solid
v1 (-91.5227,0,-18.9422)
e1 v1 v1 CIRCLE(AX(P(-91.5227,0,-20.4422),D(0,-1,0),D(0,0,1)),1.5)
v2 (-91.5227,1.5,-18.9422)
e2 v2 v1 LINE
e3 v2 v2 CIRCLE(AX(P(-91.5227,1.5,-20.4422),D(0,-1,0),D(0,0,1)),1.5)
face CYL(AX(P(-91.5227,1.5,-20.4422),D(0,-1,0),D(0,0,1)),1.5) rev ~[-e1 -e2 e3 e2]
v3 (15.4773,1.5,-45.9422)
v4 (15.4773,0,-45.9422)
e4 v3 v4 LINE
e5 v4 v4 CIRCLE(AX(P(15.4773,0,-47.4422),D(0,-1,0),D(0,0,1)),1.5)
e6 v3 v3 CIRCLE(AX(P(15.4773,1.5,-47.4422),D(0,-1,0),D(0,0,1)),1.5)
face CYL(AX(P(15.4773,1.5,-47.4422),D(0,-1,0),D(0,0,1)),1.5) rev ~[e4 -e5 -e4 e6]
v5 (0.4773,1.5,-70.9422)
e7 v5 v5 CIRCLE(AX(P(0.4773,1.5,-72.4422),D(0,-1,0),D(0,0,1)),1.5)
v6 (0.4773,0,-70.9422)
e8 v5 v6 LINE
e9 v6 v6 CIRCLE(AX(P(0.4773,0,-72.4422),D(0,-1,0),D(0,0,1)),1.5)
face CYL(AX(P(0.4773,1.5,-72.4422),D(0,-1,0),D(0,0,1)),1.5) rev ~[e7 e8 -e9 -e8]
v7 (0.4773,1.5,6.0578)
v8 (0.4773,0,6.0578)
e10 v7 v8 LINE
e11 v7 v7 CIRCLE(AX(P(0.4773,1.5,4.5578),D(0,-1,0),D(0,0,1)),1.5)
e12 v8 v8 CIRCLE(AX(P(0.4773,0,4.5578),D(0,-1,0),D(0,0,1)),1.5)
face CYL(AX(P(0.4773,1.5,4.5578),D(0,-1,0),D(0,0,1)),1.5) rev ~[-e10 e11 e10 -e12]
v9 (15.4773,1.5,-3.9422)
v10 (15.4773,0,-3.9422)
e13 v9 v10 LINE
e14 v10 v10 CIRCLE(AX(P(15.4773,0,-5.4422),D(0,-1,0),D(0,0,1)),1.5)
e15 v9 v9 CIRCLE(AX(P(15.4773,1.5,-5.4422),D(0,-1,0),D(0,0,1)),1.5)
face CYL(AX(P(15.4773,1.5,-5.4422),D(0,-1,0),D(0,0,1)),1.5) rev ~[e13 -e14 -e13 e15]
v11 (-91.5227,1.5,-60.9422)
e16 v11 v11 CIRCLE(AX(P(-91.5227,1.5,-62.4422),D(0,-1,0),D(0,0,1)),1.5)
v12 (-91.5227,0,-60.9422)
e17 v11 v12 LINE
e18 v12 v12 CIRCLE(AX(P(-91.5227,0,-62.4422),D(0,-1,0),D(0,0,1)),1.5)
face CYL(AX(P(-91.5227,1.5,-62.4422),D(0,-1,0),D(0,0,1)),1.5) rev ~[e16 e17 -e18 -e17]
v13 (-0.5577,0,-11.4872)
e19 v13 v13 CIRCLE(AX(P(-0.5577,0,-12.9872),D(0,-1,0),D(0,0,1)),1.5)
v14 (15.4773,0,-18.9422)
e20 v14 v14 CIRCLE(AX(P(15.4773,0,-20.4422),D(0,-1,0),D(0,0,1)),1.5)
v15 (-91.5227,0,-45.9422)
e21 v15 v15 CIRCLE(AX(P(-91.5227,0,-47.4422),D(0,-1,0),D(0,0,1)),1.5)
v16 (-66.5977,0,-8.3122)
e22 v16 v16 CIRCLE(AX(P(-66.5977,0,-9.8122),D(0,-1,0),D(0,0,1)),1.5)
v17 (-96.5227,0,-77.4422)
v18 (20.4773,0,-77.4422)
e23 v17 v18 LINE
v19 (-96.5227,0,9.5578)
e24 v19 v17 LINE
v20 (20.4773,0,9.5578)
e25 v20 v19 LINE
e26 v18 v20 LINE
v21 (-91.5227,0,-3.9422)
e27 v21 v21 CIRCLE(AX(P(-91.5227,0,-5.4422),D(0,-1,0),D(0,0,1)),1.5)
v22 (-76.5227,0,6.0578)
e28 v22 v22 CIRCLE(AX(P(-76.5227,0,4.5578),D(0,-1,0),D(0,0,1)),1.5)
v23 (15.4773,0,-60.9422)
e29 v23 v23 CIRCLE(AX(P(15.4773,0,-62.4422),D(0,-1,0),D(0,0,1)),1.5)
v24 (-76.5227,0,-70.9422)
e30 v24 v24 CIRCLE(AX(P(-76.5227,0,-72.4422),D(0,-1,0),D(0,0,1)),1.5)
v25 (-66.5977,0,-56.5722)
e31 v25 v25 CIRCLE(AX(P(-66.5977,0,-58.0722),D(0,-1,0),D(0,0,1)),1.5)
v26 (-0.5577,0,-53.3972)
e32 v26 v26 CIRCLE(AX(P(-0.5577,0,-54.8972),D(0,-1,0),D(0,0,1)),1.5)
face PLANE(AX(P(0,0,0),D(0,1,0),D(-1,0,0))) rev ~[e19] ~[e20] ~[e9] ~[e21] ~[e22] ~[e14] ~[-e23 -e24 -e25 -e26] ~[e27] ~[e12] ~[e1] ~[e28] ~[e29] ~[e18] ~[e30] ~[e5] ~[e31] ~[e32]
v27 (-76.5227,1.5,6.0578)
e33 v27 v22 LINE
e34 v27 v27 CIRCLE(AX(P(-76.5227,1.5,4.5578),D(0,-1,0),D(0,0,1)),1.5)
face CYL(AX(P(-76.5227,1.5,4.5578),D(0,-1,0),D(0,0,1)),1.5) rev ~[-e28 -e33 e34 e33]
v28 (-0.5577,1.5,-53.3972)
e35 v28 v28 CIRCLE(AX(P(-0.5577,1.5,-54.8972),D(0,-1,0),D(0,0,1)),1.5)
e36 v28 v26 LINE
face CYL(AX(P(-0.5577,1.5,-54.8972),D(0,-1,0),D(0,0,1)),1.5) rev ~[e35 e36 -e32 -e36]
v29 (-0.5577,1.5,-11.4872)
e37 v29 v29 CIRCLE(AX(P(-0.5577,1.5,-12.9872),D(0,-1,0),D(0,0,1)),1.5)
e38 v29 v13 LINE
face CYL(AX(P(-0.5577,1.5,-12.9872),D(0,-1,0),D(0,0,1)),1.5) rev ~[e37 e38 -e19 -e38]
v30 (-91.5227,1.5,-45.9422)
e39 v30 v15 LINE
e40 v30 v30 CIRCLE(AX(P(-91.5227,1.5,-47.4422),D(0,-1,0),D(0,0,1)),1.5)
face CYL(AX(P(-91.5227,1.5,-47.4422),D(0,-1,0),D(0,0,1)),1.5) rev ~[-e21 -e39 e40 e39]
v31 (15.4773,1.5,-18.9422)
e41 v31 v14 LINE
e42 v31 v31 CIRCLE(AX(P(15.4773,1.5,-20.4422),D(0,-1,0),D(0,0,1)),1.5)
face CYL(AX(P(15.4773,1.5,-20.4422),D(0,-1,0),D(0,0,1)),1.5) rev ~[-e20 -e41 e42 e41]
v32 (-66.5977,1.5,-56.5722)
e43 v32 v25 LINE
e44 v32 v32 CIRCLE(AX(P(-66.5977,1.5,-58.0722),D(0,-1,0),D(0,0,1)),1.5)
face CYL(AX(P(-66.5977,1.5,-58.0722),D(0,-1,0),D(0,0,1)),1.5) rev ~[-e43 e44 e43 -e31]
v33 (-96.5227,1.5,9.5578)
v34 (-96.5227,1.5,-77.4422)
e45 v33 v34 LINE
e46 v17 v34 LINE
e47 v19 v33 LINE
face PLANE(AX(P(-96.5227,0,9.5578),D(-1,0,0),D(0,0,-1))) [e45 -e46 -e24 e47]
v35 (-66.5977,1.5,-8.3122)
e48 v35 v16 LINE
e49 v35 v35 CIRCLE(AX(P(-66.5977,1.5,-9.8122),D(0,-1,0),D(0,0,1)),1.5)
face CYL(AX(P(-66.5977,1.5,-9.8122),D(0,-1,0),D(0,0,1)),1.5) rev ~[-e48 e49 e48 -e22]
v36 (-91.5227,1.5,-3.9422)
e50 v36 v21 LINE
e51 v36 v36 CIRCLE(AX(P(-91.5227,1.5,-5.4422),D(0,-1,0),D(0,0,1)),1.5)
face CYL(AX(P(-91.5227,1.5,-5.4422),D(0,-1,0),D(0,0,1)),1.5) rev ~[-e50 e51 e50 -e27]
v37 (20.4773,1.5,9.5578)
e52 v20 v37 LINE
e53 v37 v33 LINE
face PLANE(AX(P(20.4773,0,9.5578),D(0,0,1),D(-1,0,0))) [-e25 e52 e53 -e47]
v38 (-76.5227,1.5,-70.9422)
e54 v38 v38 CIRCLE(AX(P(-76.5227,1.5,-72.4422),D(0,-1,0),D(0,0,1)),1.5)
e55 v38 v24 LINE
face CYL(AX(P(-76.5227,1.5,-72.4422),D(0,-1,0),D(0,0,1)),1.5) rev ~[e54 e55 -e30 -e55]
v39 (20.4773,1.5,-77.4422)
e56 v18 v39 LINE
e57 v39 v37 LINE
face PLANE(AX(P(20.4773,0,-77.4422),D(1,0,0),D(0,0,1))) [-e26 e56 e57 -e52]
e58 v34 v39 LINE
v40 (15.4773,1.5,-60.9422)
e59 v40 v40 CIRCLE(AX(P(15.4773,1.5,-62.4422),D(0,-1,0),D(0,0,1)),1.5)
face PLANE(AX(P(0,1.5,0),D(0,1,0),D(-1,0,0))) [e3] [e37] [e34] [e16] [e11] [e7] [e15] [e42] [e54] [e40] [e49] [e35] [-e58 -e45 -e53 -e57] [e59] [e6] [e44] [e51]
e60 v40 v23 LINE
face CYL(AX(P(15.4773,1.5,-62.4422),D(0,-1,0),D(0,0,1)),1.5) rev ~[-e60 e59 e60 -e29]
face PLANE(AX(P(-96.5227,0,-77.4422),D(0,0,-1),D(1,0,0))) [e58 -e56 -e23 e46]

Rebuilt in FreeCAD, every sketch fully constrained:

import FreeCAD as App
import Part
import Sketcher
from FreeCAD import Vector
Q = App.Units.Quantity

doc = App.newDocument("Part")
body = doc.addObject("PartDesign::Body", "Body")

# Sketch on XZ plane
sketch1 = body.newObject("Sketcher::SketchObject", "Sketch")
sketch1.AttachmentSupport = (doc.getObject("XZ_Plane"), [""])
sketch1.MapMode = "FlatFace"
sketch1.addGeometry([
    Part.LineSegment(Vector(-97, 10, 0), Vector(20, 10, 0)),
    Part.LineSegment(Vector(20, 10, 0), Vector(20, -77, 0)),
    Part.LineSegment(Vector(20, -77, 0), Vector(-97, -77, 0)),
    Part.LineSegment(Vector(-97, -77, 0), Vector(-97, 10, 0)),
], False)
sketch1.addConstraint([
    Sketcher.Constraint("Coincident", 0, 2, 1, 1),
    Sketcher.Constraint("Coincident", 1, 2, 2, 1),
    Sketcher.Constraint("Coincident", 2, 2, 3, 1),
    Sketcher.Constraint("Coincident", 3, 2, 0, 1),
    Sketcher.Constraint("Horizontal", 0),
    Sketcher.Constraint("Vertical", 1),
    Sketcher.Constraint("Horizontal", 2),
    Sketcher.Constraint("Vertical", 3),
    Sketcher.Constraint("DistanceX", 0, 1, 0, 2, Q("117 mm")),
    Sketcher.Constraint("DistanceY", 1, 2, 1, 1, Q("87 mm")),
    Sketcher.Constraint("DistanceX", -1, 1, 0, 2, Q("20.4773 mm")),
    Sketcher.Constraint("DistanceY", -1, 1, 0, 2, Q("9.5578 mm")),
])
pad1 = body.newObject("PartDesign::Pad", "Pad")
pad1.Profile = sketch1
pad1.Length = 1.5
pad1.Reversed = True

# Sketch on XZ plane
sketch2 = body.newObject("Sketcher::SketchObject", "Sketch001")
sketch2.AttachmentSupport = (doc.getObject("XZ_Plane"), [""])
sketch2.MapMode = "FlatFace"
sketch2.AttachmentOffset = App.Placement(Vector(0, 0, -1.5), App.Rotation())
sketch2.addGeometry([
    Part.Circle(Vector(-76.5, -72.4, 0), Vector(0, 0, 1), 1.5),
    Part.Circle(Vector(0.5, -72.4, 0), Vector(0, 0, 1), 1.5),
    Part.Circle(Vector(-76.5, 4.6, 0), Vector(0, 0, 1), 1.5),
    Part.Circle(Vector(0.5, 4.6, 0), Vector(0, 0, 1), 1.5),
], False)
sketch2.addConstraint([
    Sketcher.Constraint("Equal", 0, 1),
    Sketcher.Constraint("Equal", 1, 2),
    Sketcher.Constraint("Equal", 2, 3),
    Sketcher.Constraint("Horizontal", 0, 3, 1, 3),
    Sketcher.Constraint("Horizontal", 2, 3, 3, 3),
    Sketcher.Constraint("Vertical", 0, 3, 2, 3),
    Sketcher.Constraint("Vertical", 1, 3, 3, 3),
    Sketcher.Constraint("Diameter", 0, Q("3 mm")),
    Sketcher.Constraint("DistanceX", 0, 3, 1, 3, Q("77 mm")),
    Sketcher.Constraint("DistanceY", 0, 3, 2, 3, Q("77 mm")),
    Sketcher.Constraint("DistanceX", 0, 3, -1, 1, Q("76.5227 mm")),
    Sketcher.Constraint("DistanceY", 0, 3, -1, 1, Q("72.4422 mm")),
])
doc.recompute()
hole = body.newObject("PartDesign::Hole", "Hole")
hole.Profile = sketch2
hole.ThreadType = "None"
hole.Diameter = 3
hole.DepthType = "ThroughAll"
hole.Reversed = True

# Sketch on XZ plane
sketch3 = body.newObject("Sketcher::SketchObject", "Sketch002")
sketch3.AttachmentSupport = (doc.getObject("XZ_Plane"), [""])
sketch3.MapMode = "FlatFace"
sketch3.AttachmentOffset = App.Placement(Vector(0, 0, -1.5), App.Rotation())
sketch3.addGeometry([
    Part.Circle(Vector(-91.5, -47.4, 0), Vector(0, 0, 1), 1.5),  # 0
    Part.Circle(Vector(-91.5, -62.4, 0), Vector(0, 0, 1), 1.5),  # 1
    Part.Circle(Vector(-91.5, -20.4, 0), Vector(0, 0, 1), 1.5),  # 2
    Part.Circle(Vector(-91.5, -5.4, 0), Vector(0, 0, 1), 1.5),  # 3
    Part.Circle(Vector(15.5, -62.4, 0), Vector(0, 0, 1), 1.5),  # 4
    Part.Circle(Vector(15.5, -47.4, 0), Vector(0, 0, 1), 1.5),  # 5
    Part.Circle(Vector(15.5, -20.4, 0), Vector(0, 0, 1), 1.5),  # 6
    Part.Circle(Vector(15.5, -5.4, 0), Vector(0, 0, 1), 1.5),  # 7
], False)
sketch3.addConstraint([
    Sketcher.Constraint("Equal", 0, 1),
    Sketcher.Constraint("Equal", 1, 2),
    Sketcher.Constraint("Equal", 2, 3),
    Sketcher.Constraint("Equal", 3, 4),
    Sketcher.Constraint("Equal", 4, 5),
    Sketcher.Constraint("Equal", 5, 6),
    Sketcher.Constraint("Equal", 6, 7),
    Sketcher.Constraint("Horizontal", 1, 3, 4, 3),
    Sketcher.Constraint("Horizontal", 0, 3, 5, 3),
    Sketcher.Constraint("Horizontal", 2, 3, 6, 3),
    Sketcher.Constraint("Horizontal", 3, 3, 7, 3),
    Sketcher.Constraint("Vertical", 0, 3, 1, 3),
    Sketcher.Constraint("Vertical", 1, 3, 2, 3),
    Sketcher.Constraint("Vertical", 2, 3, 3, 3),
    Sketcher.Constraint("Vertical", 4, 3, 5, 3),
    Sketcher.Constraint("Vertical", 5, 3, 6, 3),
    Sketcher.Constraint("Vertical", 6, 3, 7, 3),
    Sketcher.Constraint("Diameter", 0, Q("3 mm")),
    Sketcher.Constraint("DistanceY", 1, 3, 0, 3, Q("15 mm")),
    Sketcher.Constraint("DistanceY", 0, 3, 2, 3, Q("27 mm")),
    Sketcher.Constraint("DistanceY", 2, 3, 3, 3, Q("15 mm")),
    Sketcher.Constraint("DistanceX", 1, 3, 4, 3, Q("107 mm")),
    Sketcher.Constraint("DistanceX", 0, 3, -1, 1, Q("91.5227 mm")),
    Sketcher.Constraint("DistanceY", 0, 3, -1, 1, Q("47.4422 mm")),
])
doc.recompute()
hole2 = body.newObject("PartDesign::Hole", "Hole001")
hole2.Profile = sketch3
hole2.ThreadType = "None"
hole2.Diameter = 3
hole2.DepthType = "ThroughAll"
hole2.Reversed = True

# Sketch on XZ plane
sketch4 = body.newObject("Sketcher::SketchObject", "Sketch003")
sketch4.AttachmentSupport = (doc.getObject("XZ_Plane"), [""])
sketch4.MapMode = "FlatFace"
sketch4.AttachmentOffset = App.Placement(Vector(0, 0, -1.5), App.Rotation())
sketch4.addGeometry([
    Part.Circle(Vector(-66.6, -58.1, 0), Vector(0, 0, 1), 1.5),
    Part.Circle(Vector(-66.6, -9.8, 0), Vector(0, 0, 1), 1.5),
    Part.Circle(Vector(-0.6, -13, 0), Vector(0, 0, 1), 1.5),
    Part.Circle(Vector(-0.6, -54.9, 0), Vector(0, 0, 1), 1.5),
], False)
sketch4.addConstraint([
    Sketcher.Constraint("Equal", 0, 1),
    Sketcher.Constraint("Equal", 1, 2),
    Sketcher.Constraint("Equal", 2, 3),
    Sketcher.Constraint("Vertical", 0, 3, 1, 3),
    Sketcher.Constraint("Vertical", 2, 3, 3, 3),
    Sketcher.Constraint("Diameter", 0, Q("3 mm")),
    Sketcher.Constraint("DistanceY", 0, 3, 1, 3, Q("48.26 mm")),
    Sketcher.Constraint("DistanceX", 1, 3, 2, 3, Q("66.04 mm")),
    Sketcher.Constraint("DistanceY", 3, 3, 2, 3, Q("41.91 mm")),
    Sketcher.Constraint("DistanceY", 2, 3, 1, 3, Q("3.175 mm")),
    Sketcher.Constraint("DistanceX", 0, 3, -1, 1, Q("66.5977 mm")),
    Sketcher.Constraint("DistanceY", 0, 3, -1, 1, Q("58.0722 mm")),
])
doc.recompute()
hole3 = body.newObject("PartDesign::Hole", "Hole002")
hole3.Profile = sketch4
hole3.ThreadType = "None"
hole3.Diameter = 3
hole3.DepthType = "ThroughAll"
hole3.Reversed = True

doc.recompute()
